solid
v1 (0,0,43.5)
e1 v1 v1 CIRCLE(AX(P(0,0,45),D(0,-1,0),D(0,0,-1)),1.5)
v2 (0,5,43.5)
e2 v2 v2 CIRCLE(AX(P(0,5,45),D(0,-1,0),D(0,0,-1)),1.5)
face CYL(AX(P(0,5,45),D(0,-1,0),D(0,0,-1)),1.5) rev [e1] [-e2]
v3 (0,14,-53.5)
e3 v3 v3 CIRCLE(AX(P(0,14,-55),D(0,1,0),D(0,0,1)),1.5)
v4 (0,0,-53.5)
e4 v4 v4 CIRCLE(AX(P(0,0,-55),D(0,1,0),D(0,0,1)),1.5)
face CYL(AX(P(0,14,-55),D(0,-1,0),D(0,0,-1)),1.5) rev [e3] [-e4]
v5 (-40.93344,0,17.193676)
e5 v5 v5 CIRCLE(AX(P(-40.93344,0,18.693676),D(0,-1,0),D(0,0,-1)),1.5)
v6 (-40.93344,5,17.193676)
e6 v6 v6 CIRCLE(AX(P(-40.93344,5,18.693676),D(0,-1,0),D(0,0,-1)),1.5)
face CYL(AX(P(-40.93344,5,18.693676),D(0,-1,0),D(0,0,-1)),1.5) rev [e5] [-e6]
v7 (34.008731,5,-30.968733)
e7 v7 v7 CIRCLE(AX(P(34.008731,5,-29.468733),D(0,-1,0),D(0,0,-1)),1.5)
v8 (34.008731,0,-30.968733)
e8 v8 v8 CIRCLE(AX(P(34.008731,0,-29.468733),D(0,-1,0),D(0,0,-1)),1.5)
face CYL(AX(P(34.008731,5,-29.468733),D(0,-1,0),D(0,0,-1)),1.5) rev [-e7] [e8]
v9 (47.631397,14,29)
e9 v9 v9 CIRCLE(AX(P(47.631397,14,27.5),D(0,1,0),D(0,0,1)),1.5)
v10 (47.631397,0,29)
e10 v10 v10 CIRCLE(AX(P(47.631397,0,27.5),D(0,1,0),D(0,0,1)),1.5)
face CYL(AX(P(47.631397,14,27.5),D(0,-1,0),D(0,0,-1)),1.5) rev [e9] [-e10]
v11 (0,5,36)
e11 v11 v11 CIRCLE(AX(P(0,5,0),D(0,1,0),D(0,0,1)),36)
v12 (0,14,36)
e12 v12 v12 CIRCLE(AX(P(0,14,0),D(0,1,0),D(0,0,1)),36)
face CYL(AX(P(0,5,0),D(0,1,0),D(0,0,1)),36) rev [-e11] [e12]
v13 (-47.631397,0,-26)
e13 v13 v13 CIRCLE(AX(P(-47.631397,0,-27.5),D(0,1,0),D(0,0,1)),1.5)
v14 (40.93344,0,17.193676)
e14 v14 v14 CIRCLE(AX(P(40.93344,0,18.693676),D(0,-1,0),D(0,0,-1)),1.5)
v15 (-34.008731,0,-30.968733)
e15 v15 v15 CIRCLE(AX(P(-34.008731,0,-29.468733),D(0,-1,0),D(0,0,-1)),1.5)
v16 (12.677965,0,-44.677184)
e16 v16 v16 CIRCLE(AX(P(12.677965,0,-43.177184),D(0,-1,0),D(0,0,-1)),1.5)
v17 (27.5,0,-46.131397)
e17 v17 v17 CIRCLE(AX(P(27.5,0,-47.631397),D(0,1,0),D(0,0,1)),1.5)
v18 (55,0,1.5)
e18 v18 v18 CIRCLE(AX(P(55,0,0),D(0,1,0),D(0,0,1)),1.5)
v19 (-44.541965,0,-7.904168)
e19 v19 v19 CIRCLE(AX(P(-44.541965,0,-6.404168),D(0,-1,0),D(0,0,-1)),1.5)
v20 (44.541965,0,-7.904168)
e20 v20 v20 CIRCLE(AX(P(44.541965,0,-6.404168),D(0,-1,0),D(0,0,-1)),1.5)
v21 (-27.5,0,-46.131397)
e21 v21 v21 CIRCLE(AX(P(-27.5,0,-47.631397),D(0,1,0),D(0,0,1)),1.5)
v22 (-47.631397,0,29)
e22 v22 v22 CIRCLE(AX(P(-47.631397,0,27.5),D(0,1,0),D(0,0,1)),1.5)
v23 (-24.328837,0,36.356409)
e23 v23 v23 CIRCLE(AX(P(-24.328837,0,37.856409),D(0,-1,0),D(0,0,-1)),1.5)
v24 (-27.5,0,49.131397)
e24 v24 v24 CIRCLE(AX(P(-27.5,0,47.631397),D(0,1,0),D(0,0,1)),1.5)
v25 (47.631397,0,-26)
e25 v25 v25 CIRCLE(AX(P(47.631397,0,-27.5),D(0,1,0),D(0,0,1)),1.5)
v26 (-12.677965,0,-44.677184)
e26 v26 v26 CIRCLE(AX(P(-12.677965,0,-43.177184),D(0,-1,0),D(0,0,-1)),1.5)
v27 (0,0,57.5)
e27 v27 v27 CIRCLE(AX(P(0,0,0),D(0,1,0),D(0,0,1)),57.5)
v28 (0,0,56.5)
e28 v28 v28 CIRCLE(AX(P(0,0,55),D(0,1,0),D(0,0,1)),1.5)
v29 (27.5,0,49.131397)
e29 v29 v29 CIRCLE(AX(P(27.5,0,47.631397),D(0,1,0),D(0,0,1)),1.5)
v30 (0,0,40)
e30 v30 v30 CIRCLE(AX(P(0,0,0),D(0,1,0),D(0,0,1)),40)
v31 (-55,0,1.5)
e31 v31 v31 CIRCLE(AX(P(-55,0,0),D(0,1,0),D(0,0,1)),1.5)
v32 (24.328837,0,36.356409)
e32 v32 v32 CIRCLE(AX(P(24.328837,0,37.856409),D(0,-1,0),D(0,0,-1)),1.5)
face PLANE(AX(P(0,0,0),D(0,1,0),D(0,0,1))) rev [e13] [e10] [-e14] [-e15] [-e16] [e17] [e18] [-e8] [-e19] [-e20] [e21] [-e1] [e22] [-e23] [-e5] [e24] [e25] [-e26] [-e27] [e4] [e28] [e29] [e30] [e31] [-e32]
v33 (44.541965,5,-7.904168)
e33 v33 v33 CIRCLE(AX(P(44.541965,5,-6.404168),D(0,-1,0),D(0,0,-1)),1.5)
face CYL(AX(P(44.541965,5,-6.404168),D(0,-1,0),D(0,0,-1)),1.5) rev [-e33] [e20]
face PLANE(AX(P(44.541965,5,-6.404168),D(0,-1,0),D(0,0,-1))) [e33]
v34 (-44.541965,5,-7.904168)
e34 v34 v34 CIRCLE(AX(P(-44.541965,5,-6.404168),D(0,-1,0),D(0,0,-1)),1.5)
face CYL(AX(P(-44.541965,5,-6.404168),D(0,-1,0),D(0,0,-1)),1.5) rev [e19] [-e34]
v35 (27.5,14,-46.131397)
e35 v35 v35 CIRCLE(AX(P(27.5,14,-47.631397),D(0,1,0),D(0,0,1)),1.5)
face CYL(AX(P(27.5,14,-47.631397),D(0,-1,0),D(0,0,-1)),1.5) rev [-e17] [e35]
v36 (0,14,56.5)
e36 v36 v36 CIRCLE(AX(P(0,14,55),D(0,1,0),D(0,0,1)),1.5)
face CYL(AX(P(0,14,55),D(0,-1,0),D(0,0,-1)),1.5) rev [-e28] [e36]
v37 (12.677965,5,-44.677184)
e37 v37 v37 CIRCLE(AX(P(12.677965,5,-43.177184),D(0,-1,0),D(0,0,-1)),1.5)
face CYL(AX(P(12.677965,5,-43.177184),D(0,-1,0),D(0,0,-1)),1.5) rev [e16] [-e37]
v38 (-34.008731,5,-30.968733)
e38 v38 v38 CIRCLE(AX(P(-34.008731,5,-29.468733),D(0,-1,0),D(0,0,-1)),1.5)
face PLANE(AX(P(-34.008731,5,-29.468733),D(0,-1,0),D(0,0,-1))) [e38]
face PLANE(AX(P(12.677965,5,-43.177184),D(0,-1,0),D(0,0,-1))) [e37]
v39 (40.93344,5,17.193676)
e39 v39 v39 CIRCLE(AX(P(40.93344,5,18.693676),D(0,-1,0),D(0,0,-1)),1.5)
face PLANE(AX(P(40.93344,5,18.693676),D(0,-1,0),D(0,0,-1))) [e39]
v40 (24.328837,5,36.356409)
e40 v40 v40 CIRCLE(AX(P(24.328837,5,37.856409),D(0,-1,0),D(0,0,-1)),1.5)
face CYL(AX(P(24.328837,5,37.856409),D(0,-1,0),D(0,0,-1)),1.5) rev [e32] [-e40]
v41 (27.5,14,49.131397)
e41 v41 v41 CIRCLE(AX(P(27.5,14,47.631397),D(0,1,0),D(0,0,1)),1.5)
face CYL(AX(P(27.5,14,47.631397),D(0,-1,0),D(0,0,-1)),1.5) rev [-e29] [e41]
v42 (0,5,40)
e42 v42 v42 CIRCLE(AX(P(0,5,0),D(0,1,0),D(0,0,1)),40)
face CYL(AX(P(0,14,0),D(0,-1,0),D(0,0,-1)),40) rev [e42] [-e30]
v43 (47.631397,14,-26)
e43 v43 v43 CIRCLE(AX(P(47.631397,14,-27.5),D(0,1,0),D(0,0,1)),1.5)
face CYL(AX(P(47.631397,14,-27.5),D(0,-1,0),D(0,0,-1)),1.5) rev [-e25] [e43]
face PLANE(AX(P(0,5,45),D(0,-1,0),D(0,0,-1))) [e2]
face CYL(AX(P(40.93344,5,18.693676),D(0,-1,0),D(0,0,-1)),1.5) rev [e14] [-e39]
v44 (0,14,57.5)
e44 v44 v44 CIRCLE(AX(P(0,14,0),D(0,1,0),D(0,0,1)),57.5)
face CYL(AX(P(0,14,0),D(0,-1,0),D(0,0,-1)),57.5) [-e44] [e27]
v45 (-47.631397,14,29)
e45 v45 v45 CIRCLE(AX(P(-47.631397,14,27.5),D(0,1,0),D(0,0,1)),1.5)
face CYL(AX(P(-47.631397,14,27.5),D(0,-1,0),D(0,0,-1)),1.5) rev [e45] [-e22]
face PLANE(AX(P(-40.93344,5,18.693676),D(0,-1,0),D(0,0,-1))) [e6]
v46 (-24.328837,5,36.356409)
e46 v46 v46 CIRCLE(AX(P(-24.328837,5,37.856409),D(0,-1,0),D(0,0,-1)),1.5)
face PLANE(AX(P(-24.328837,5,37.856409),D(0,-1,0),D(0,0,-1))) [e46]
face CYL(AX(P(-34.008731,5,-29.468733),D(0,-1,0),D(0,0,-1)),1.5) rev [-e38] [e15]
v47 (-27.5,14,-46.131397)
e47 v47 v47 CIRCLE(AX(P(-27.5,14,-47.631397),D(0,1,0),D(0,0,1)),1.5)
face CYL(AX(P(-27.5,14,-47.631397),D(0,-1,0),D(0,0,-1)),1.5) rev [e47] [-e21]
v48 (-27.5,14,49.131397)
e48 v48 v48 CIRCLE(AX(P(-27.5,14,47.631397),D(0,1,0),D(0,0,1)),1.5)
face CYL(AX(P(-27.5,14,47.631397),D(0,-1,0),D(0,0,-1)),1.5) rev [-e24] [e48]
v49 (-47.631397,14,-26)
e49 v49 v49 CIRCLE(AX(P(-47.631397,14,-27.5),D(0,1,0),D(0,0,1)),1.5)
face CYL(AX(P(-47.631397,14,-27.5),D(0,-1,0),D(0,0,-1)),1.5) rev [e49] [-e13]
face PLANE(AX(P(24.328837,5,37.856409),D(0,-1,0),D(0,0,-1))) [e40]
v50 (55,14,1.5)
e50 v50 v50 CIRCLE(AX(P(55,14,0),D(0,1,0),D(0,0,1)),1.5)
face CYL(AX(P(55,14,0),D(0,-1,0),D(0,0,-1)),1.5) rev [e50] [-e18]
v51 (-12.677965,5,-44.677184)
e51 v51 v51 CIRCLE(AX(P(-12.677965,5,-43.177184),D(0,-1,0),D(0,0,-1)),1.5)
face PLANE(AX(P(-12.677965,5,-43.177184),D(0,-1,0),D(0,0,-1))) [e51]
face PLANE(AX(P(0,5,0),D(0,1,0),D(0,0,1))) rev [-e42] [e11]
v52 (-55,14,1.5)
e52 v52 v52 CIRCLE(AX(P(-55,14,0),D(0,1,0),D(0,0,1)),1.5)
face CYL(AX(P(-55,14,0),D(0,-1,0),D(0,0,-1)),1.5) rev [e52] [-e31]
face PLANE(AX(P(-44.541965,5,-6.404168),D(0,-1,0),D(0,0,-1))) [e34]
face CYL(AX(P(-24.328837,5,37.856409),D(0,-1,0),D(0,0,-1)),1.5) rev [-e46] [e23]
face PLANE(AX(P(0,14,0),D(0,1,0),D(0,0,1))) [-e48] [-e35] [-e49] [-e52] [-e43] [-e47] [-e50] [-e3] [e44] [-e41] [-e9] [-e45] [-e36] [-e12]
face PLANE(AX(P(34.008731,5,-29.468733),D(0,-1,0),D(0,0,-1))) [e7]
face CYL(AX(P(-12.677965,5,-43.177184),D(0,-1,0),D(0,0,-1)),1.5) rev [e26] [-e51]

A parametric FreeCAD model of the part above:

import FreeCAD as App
import Part
import Sketcher

doc = App.newDocument("Part")
body = doc.addObject("PartDesign::Body", "Body")

# Sketch on XZ plane
sketch1 = doc.addObject("Sketcher::SketchObject", "Sketch")
body.addObject(sketch1)
sketch1.AttachmentSupport = (doc.XZ_Plane, [""])
sketch1.MapMode = "FlatFace"
sketch1.addGeometry([
    Part.Circle(App.Vector(0, 0, 0), App.Vector(0, 0, 1), 57.5),  # 0
    Part.Circle(App.Vector(-47.6, -27.5, 0), App.Vector(0, 0, 1), 1.5),  # 1
    Part.Circle(App.Vector(-27.5, -47.6, 0), App.Vector(0, 0, 1), 1.5),  # 2
    Part.Circle(App.Vector(0, -55, 0), App.Vector(0, 0, 1), 1.5),  # 3
    Part.Circle(App.Vector(-55, 0, 0), App.Vector(0, 0, 1), 1.5),  # 4
    Part.Circle(App.Vector(-47.6, 27.5, 0), App.Vector(0, 0, 1), 1.5),  # 5
    Part.Circle(App.Vector(-27.5, 47.6, 0), App.Vector(0, 0, 1), 1.5),  # 6
    Part.Circle(App.Vector(27.5, -47.6, 0), App.Vector(0, 0, 1), 1.5),  # 7
    Part.Circle(App.Vector(47.6, -27.5, 0), App.Vector(0, 0, 1), 1.5),  # 8
    Part.Circle(App.Vector(55, 0, 0), App.Vector(0, 0, 1), 1.5),  # 9
    Part.Circle(App.Vector(0, 0, 0), App.Vector(0, 0, 1), 40),  # 10
    Part.Circle(App.Vector(0, 55, 0), App.Vector(0, 0, 1), 1.5),  # 11
    Part.Circle(App.Vector(27.5, 47.6, 0), App.Vector(0, 0, 1), 1.5),  # 12
    Part.Circle(App.Vector(47.6, 27.5, 0), App.Vector(0, 0, 1), 1.5),  # 13
], False)
sketch1.addConstraint([
    Sketcher.Constraint("Coincident", 0, 3, -1, 1),
    Sketcher.Constraint("Coincident", 10, 3, -1, 1),
    Sketcher.Constraint("Equal", 1, 2),
    Sketcher.Constraint("Equal", 2, 3),
    Sketcher.Constraint("Equal", 3, 4),
    Sketcher.Constraint("Equal", 4, 5),
    Sketcher.Constraint("Equal", 5, 6),
    Sketcher.Constraint("Equal", 6, 7),
    Sketcher.Constraint("Equal", 7, 8),
    Sketcher.Constraint("Equal", 8, 9),
    Sketcher.Constraint("Equal", 9, 11),
    Sketcher.Constraint("Equal", 11, 12),
    Sketcher.Constraint("Equal", 12, 13),
    Sketcher.Constraint("Symmetric", 6, 3, 7, 3, -1, 1),
    Sketcher.Constraint("Symmetric", 5, 3, 8, 3, -1, 1),
    Sketcher.Constraint("Symmetric", 4, 3, 9, 3, -1, 1),
    Sketcher.Constraint("Symmetric", 3, 3, 11, 3, -1, 1),
    Sketcher.Constraint("Symmetric", 2, 3, 12, 3, -1, 1),
    Sketcher.Constraint("Symmetric", 1, 3, 13, 3, -1, 1),
    Sketcher.Constraint("Symmetric", 2, 3, 7, 3, -2),
    Sketcher.Constraint("Symmetric", 1, 3, 8, 3, -2),
    Sketcher.Constraint("PointOnObject", 3, 3, -2),
    Sketcher.Constraint("PointOnObject", 4, 3, -1),
    Sketcher.Constraint("Diameter", 0, 115.0),
    Sketcher.Constraint("Diameter", 1, 3.0),
    Sketcher.Constraint("Diameter", 10, 80.0),
    Sketcher.Constraint("DistanceY", 3, 3, -1, 1, 55.0),
    Sketcher.Constraint("DistanceX", 4, 3, -1, 1, 55.0),
    Sketcher.Constraint("DistanceY", 1, 3, 5, 3, 55.0),
    Sketcher.Constraint("DistanceX", 2, 3, 7, 3, 55.0),
    Sketcher.Constraint("DistanceX", 1, 3, -1, 1, 47.631397),
    Sketcher.Constraint("DistanceY", 2, 3, -1, 1, 47.631397),
])
pad1 = doc.addObject("PartDesign::Pad", "Pad")
body.addObject(pad1)
pad1.Profile = sketch1
pad1.Length = 14
pad1.Reversed = True

# Sketch on XZ plane
sketch2 = doc.addObject("Sketcher::SketchObject", "Sketch001")
body.addObject(sketch2)
sketch2.AttachmentSupport = (doc.XZ_Plane, [""])
sketch2.MapMode = "FlatFace"
sketch2.AttachmentOffset = App.Placement(App.Vector(0, 0, -14), App.Rotation())
sketch2.addGeometry([
    Part.Circle(App.Vector(0, 0, 0), App.Vector(0, 0, 1), 42),
    Part.Circle(App.Vector(0, 0, 0), App.Vector(0, 0, 1), 36),
], False)
sketch2.addConstraint([
    Sketcher.Constraint("Coincident", 0, 3, -1, 1),
    Sketcher.Constraint("Coincident", 1, 3, -1, 1),
    Sketcher.Constraint("Diameter", 0, 85.0),
    Sketcher.Constraint("Diameter", 1, 72.0),
])
pad2 = doc.addObject("PartDesign::Pad", "Pad001")
body.addObject(pad2)
pad2.Profile = sketch2
pad2.Length = 9

# Sketch on XZ plane
sketch3 = doc.addObject("Sketcher::SketchObject", "Sketch002")
body.addObject(sketch3)
sketch3.AttachmentSupport = (doc.XZ_Plane, [""])
sketch3.MapMode = "FlatFace"
sketch3.addGeometry([
    Part.Circle(App.Vector(0, 45, 0), App.Vector(0, 0, 1), 1.5),  # 0
    Part.Circle(App.Vector(24.3, 37.9, 0), App.Vector(0, 0, 1), 1.5),  # 1
    Part.Circle(App.Vector(40.9, 18.7, 0), App.Vector(0, 0, 1), 1.5),  # 2
    Part.Circle(App.Vector(44.5, -6.4, 0), App.Vector(0, 0, 1), 1.5),  # 3
    Part.Circle(App.Vector(34, -29.5, 0), App.Vector(0, 0, 1), 1.5),  # 4
    Part.Circle(App.Vector(12.7, -43.2, 0), App.Vector(0, 0, 1), 1.5),  # 5
    Part.Circle(App.Vector(-12.7, -43.2, 0), App.Vector(0, 0, 1), 1.5),  # 6
    Part.Circle(App.Vector(-34, -29.5, 0), App.Vector(0, 0, 1), 1.5),  # 7
    Part.Circle(App.Vector(-44.5, -6.4, 0), App.Vector(0, 0, 1), 1.5),  # 8
    Part.Circle(App.Vector(-40.9, 18.7, 0), App.Vector(0, 0, 1), 1.5),  # 9
    Part.Circle(App.Vector(-24.3, 37.9, 0), App.Vector(0, 0, 1), 1.5),  # 10
], False)
sketch3.addConstraint([
    Sketcher.Constraint("Equal", 0, 1),
    Sketcher.Constraint("Equal", 1, 2),
    Sketcher.Constraint("Equal", 2, 3),
    Sketcher.Constraint("Equal", 3, 4),
    Sketcher.Constraint("Equal", 4, 5),
    Sketcher.Constraint("Equal", 5, 6),
    Sketcher.Constraint("Equal", 6, 7),
    Sketcher.Constraint("Equal", 7, 8),
    Sketcher.Constraint("Equal", 8, 9),
    Sketcher.Constraint("Equal", 9, 10),
    Sketcher.Constraint("Symmetric", 5, 3, 6, 3, -2),
    Sketcher.Constraint("Symmetric", 4, 3, 7, 3, -2),
    Sketcher.Constraint("Symmetric", 3, 3, 8, 3, -2),
    Sketcher.Constraint("Symmetric", 2, 3, 9, 3, -2),
    Sketcher.Constraint("Symmetric", 1, 3, 10, 3, -2),
    Sketcher.Constraint("PointOnObject", 0, 3, -2),
    Sketcher.Constraint("Diameter", 0, 3.0),
    Sketcher.Constraint("DistanceY", -1, 1, 0, 3, 45.0),
    Sketcher.Constraint("DistanceX", 5, 3, 3, 3, 31.864),
    Sketcher.Constraint("DistanceX", 6, 3, 1, 3, 37.006802),
    Sketcher.Constraint("DistanceY", -1, 1, 1, 3, 37.856409),
    Sketcher.Constraint("DistanceX", -1, 1, 2, 3, 40.93344),
    Sketcher.Constraint("DistanceX", -1, 1, 4, 3, 34.008731),
    Sketcher.Constraint("DistanceX", 1, 3, 3, 3, 20.213128),
    Sketcher.Constraint("DistanceY", 4, 3, 2, 3, 48.162409),
    Sketcher.Constraint("DistanceY", 5, 3, 4, 3, 13.708451),
    Sketcher.Constraint("DistanceY", -1, 1, 2, 3, 18.693676),
    Sketcher.Constraint("DistanceY", 3, 3, -1, 1, 6.404168),
])
pocket1 = doc.addObject("PartDesign::Pocket", "Pocket")
body.addObject(pocket1)
pocket1.Profile = sketch3
pocket1.Length = 5

doc.recompute()
